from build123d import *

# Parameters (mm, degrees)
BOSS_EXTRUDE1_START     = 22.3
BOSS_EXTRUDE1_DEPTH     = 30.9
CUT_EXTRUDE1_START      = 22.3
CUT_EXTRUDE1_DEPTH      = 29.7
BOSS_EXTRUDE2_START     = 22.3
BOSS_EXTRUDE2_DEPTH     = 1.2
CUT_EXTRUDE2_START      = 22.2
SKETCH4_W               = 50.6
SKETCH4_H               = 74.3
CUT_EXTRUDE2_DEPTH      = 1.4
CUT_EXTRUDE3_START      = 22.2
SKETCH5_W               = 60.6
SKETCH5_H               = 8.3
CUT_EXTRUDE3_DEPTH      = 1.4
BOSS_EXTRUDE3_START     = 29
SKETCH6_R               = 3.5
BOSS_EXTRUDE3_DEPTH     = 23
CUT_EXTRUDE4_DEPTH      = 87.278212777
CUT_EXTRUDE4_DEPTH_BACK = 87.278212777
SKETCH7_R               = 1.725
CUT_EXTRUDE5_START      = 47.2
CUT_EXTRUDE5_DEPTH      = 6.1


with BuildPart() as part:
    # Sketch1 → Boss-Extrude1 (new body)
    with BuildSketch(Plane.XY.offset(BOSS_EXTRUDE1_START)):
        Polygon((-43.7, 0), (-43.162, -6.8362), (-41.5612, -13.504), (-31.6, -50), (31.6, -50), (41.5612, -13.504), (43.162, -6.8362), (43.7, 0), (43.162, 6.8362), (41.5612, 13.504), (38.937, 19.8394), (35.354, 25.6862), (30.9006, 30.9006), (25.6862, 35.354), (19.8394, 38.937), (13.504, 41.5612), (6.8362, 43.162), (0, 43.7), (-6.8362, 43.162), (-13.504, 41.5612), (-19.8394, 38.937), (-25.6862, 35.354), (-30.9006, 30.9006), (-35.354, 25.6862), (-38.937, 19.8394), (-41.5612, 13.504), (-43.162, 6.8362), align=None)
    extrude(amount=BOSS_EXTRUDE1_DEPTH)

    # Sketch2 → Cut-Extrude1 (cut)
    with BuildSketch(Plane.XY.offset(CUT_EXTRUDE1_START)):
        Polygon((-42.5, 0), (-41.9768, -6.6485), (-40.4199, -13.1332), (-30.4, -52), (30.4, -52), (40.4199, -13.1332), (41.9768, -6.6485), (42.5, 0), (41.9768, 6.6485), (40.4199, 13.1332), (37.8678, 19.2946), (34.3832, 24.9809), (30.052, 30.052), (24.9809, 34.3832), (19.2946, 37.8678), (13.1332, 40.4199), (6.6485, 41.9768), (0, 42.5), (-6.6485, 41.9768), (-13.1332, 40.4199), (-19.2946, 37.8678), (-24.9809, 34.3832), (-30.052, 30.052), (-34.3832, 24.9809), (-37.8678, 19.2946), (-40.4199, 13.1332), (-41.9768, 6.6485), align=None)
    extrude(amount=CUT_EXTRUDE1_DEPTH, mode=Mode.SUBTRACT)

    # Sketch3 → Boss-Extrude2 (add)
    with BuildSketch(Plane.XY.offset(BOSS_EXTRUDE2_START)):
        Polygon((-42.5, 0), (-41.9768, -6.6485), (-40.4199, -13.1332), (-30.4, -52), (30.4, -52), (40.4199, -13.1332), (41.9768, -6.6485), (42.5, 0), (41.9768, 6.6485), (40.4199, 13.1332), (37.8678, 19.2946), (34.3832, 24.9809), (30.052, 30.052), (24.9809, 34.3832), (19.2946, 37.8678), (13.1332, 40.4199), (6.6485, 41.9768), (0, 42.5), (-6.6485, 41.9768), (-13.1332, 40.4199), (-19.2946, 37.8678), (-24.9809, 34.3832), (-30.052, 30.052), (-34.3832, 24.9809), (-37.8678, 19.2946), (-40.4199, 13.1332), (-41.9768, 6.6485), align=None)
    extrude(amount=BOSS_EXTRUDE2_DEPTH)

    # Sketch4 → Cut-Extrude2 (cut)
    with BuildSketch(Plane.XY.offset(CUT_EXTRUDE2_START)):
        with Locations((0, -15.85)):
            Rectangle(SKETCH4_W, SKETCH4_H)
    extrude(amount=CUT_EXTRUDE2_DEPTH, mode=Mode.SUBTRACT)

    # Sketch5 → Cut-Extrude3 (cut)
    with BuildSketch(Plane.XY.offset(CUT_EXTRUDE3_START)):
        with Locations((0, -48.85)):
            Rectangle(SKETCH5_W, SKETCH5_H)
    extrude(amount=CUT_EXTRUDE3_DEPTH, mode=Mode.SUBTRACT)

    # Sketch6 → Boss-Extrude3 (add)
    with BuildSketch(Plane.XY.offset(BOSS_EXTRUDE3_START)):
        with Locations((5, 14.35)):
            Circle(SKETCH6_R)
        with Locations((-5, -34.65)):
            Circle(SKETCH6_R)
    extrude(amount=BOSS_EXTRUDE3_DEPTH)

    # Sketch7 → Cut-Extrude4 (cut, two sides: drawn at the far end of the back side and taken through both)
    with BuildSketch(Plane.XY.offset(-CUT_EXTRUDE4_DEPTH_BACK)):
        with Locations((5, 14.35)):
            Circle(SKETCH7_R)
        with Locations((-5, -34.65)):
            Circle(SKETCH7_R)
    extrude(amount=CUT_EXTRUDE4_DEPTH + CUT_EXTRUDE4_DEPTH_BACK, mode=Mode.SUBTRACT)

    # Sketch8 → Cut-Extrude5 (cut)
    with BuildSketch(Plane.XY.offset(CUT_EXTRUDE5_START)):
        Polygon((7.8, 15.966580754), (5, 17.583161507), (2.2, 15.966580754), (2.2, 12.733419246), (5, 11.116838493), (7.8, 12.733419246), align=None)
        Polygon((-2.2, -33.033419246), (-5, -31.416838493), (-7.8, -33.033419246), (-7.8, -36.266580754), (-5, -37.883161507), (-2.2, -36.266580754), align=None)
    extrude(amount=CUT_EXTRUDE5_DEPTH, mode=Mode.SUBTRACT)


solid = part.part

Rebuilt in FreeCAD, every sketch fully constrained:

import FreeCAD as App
import Part
import Sketcher
Q = App.Units.Quantity


def add_polygon(sketch, points):
    """Adds a closed chain of lines whose ends are joined by coincident constraints."""
    first, n = sketch.GeometryCount, len(points)
    for a, b in zip(points, points[1:] + points[:1]):
        sketch.addGeometry(Part.LineSegment(App.Vector(*a, 0), App.Vector(*b, 0)), False)
    for i in range(n):
        sketch.addConstraint(Sketcher.Constraint("Coincident", first + i, 2, first + (i + 1) % n, 1))

doc = App.newDocument("Part")
body = doc.addObject("PartDesign::Body", "Body")

# Sketch on XY plane
sketch1 = doc.addObject("Sketcher::SketchObject", "Sketch")
body.addObject(sketch1)
sketch1.AttachmentSupport = (doc.XY_Plane, [""])
sketch1.MapMode = "FlatFace"
sketch1.AttachmentOffset = App.Placement(App.Vector(0, 0, 22.3), App.Rotation())
add_polygon(sketch1, [(-44, 0), (-43, -7), (-42, -14), (-32, -50), (32, -50), (42, -14), (43, -7), (44, 0), (43, 7), (42, 14), (39, 20), (35, 26), (31, 31), (26, 35), (20, 39), (14, 42), (7, 43), (0, 44), (-7, 43), (-14, 42), (-20, 39), (-26, 35), (-31, 31), (-35, 26), (-39, 20), (-42, 14), (-43, 7)])  # lines 0-26
sketch1.addConstraint([
    Sketcher.Constraint("Horizontal", 3),
    Sketcher.Constraint("Symmetric", 0, 2, 7, 2, -1, 1),
    Sketcher.Constraint("Symmetric", 1, 2, 8, 2, -1, 1),
    Sketcher.Constraint("Symmetric", 4, 2, 24, 2, -1, 1),
    Sketcher.Constraint("Symmetric", 5, 2, 25, 2, -1, 1),
    Sketcher.Constraint("Symmetric", 6, 2, 26, 2, -1, 1),
    Sketcher.Constraint("Symmetric", 1, 2, 4, 2, -2),
    Sketcher.Constraint("Symmetric", 0, 2, 5, 2, -2),
    Sketcher.Constraint("Symmetric", 15, 2, 17, 2, -2),
    Sketcher.Constraint("Symmetric", 14, 2, 18, 2, -2),
    Sketcher.Constraint("Symmetric", 13, 2, 19, 2, -2),
    Sketcher.Constraint("Symmetric", 12, 2, 20, 2, -2),
    Sketcher.Constraint("Symmetric", 11, 2, 21, 2, -2),
    Sketcher.Constraint("Symmetric", 10, 2, 22, 2, -2),
    Sketcher.Constraint("Symmetric", 9, 2, 23, 2, -2),
    Sketcher.Constraint("PointOnObject", 6, 2, -1),
    Sketcher.Constraint("PointOnObject", 16, 2, -2),
    Sketcher.Constraint("Perpendicular", 5, 15),
    Sketcher.Constraint("Perpendicular", 6, 16),
    Sketcher.Constraint("Perpendicular", 9, 19),
    Sketcher.Constraint("Perpendicular", 10, 20),
    Sketcher.Constraint("Perpendicular", 11, 21),
    Sketcher.Constraint("Equal", 2, 4),
    Sketcher.Constraint("Equal", 11, 12),
    Sketcher.Constraint("Equal", 10, 13),
    Sketcher.Constraint("Equal", 9, 14),
    Sketcher.Constraint("Equal", 8, 15),
    Sketcher.Constraint("Equal", 7, 16),
    Sketcher.Constraint("DistanceX", 3, 1, 3, 2, Q("63.2 mm")),
    Sketcher.Constraint("DistanceY", 2, 2, -1, 1, Q("50 mm")),
    Sketcher.Constraint("DistanceX", -1, 1, 6, 2, Q("43.7 mm")),
    Sketcher.Constraint("DistanceY", 7, 2, 10, 2, Q("18.85 mm")),
    Sketcher.Constraint("DistanceY", 8, 2, 12, 2, Q("21.85 mm")),
    Sketcher.Constraint("DistanceX", 0, 2, -1, 1, Q("43.162 mm")),
    Sketcher.Constraint("DistanceY", 1, 2, -1, 1, Q("13.504 mm")),
    Sketcher.Constraint("DistanceX", -1, 1, 9, 2, Q("38.937 mm")),
    Sketcher.Constraint("DistanceX", 12, 2, 8, 2, Q("15.875 mm")),
    Sketcher.Constraint("DistanceY", 0, 2, -1, 1, Q("6.8362 mm")),
    Sketcher.Constraint("DistanceY", -1, 1, 9, 2, Q("19.8394 mm")),
    Sketcher.Constraint("DistanceX", -1, 1, 11, 2, Q("30.9006 mm")),
])
pad1 = doc.addObject("PartDesign::Pad", "Pad")
body.addObject(pad1)
pad1.Profile = sketch1
pad1.Length = 30.9

# Sketch on XY plane
sketch2 = doc.addObject("Sketcher::SketchObject", "Sketch001")
body.addObject(sketch2)
sketch2.AttachmentSupport = (doc.XY_Plane, [""])
sketch2.MapMode = "FlatFace"
sketch2.AttachmentOffset = App.Placement(App.Vector(0, 0, 22.3), App.Rotation())
add_polygon(sketch2, [(-42, 0), (-42, -7), (-40, -13), (-30, -52), (30, -52), (40, -13), (42, -7), (42, 0), (42, 7), (40, 13), (38, 19), (34, 25), (30, 30), (25, 34), (19, 38), (13, 40), (7, 42), (0, 42), (-7, 42), (-13, 40), (-19, 38), (-25, 34), (-30, 30), (-34, 25), (-38, 19), (-40, 13), (-42, 7)])  # lines 0-26
sketch2.addConstraint([
    Sketcher.Constraint("Horizontal", 3),
    Sketcher.Constraint("Symmetric", 0, 2, 7, 2, -1, 1),
    Sketcher.Constraint("Symmetric", 1, 2, 8, 2, -1, 1),
    Sketcher.Constraint("Symmetric", 4, 2, 24, 2, -1, 1),
    Sketcher.Constraint("Symmetric", 5, 2, 25, 2, -1, 1),
    Sketcher.Constraint("Symmetric", 6, 2, 26, 2, -1, 1),
    Sketcher.Constraint("Symmetric", 1, 2, 4, 2, -2),
    Sketcher.Constraint("Symmetric", 0, 2, 5, 2, -2),
    Sketcher.Constraint("Symmetric", 15, 2, 17, 2, -2),
    Sketcher.Constraint("Symmetric", 14, 2, 18, 2, -2),
    Sketcher.Constraint("Symmetric", 13, 2, 19, 2, -2),
    Sketcher.Constraint("Symmetric", 12, 2, 20, 2, -2),
    Sketcher.Constraint("Symmetric", 11, 2, 21, 2, -2),
    Sketcher.Constraint("Symmetric", 10, 2, 22, 2, -2),
    Sketcher.Constraint("Symmetric", 9, 2, 23, 2, -2),
    Sketcher.Constraint("PointOnObject", 6, 2, -1),
    Sketcher.Constraint("PointOnObject", 16, 2, -2),
    Sketcher.Constraint("Perpendicular", 5, 15),
    Sketcher.Constraint("Perpendicular", 6, 16),
    Sketcher.Constraint("Perpendicular", 9, 19),
    Sketcher.Constraint("Perpendicular", 10, 20),
    Sketcher.Constraint("Perpendicular", 11, 21),
    Sketcher.Constraint("Equal", 2, 4),
    Sketcher.Constraint("Equal", 11, 12),
    Sketcher.Constraint("Equal", 10, 13),
    Sketcher.Constraint("Equal", 9, 14),
    Sketcher.Constraint("Equal", 8, 15),
    Sketcher.Constraint("Equal", 7, 16),
    Sketcher.Constraint("DistanceX", 3, 1, 3, 2, Q("60.8 mm")),
    Sketcher.Constraint("DistanceY", 2, 2, -1, 1, Q("52 mm")),
    Sketcher.Constraint("DistanceX", -1, 1, 6, 2, Q("42.5 mm")),
    Sketcher.Constraint("DistanceY", 8, 2, 12, 2, Q("21.25 mm")),
    Sketcher.Constraint("DistanceX", -1, 1, 11, 2, Q("30.052 mm")),
    Sketcher.Constraint("DistanceY", 5, 2, 7, 2, Q("13.297 mm")),
    Sketcher.Constraint("DistanceX", 9, 2, 7, 2, Q("4.109 mm")),
    Sketcher.Constraint("DistanceX", 12, 2, 8, 2, Q("15.439 mm")),
    Sketcher.Constraint("DistanceX", 0, 2, -1, 1, Q("41.9768 mm")),
    Sketcher.Constraint("DistanceX", 1, 2, -1, 1, Q("40.4199 mm")),
    Sketcher.Constraint("DistanceY", 1, 2, -1, 1, Q("13.1332 mm")),
    Sketcher.Constraint("DistanceY", -1, 1, 9, 2, Q("19.2946 mm")),
])
pocket1 = doc.addObject("PartDesign::Pocket", "Pocket")
body.addObject(pocket1)
pocket1.Profile = sketch2
pocket1.Length = 29.7
pocket1.Reversed = True

# Sketch on XY plane
sketch3 = doc.addObject("Sketcher::SketchObject", "Sketch002")
body.addObject(sketch3)
sketch3.AttachmentSupport = (doc.XY_Plane, [""])
sketch3.MapMode = "FlatFace"
sketch3.AttachmentOffset = App.Placement(App.Vector(0, 0, 22.3), App.Rotation())
add_polygon(sketch3, [(-42, 0), (-42, -7), (-40, -13), (-30, -52), (30, -52), (40, -13), (42, -7), (42, 0), (42, 7), (40, 13), (38, 19), (34, 25), (30, 30), (25, 34), (19, 38), (13, 40), (7, 42), (0, 42), (-7, 42), (-13, 40), (-19, 38), (-25, 34), (-30, 30), (-34, 25), (-38, 19), (-40, 13), (-42, 7)])  # lines 0-26
sketch3.addConstraint([
    Sketcher.Constraint("Horizontal", 3),
    Sketcher.Constraint("Symmetric", 0, 2, 7, 2, -1, 1),
    Sketcher.Constraint("Symmetric", 1, 2, 8, 2, -1, 1),
    Sketcher.Constraint("Symmetric", 4, 2, 24, 2, -1, 1),
    Sketcher.Constraint("Symmetric", 5, 2, 25, 2, -1, 1),
    Sketcher.Constraint("Symmetric", 6, 2, 26, 2, -1, 1),
    Sketcher.Constraint("Symmetric", 1, 2, 4, 2, -2),
    Sketcher.Constraint("Symmetric", 0, 2, 5, 2, -2),
    Sketcher.Constraint("Symmetric", 15, 2, 17, 2, -2),
    Sketcher.Constraint("Symmetric", 14, 2, 18, 2, -2),
    Sketcher.Constraint("Symmetric", 13, 2, 19, 2, -2),
    Sketcher.Constraint("Symmetric", 12, 2, 20, 2, -2),
    Sketcher.Constraint("Symmetric", 11, 2, 21, 2, -2),
    Sketcher.Constraint("Symmetric", 10, 2, 22, 2, -2),
    Sketcher.Constraint("Symmetric", 9, 2, 23, 2, -2),
    Sketcher.Constraint("PointOnObject", 6, 2, -1),
    Sketcher.Constraint("PointOnObject", 16, 2, -2),
    Sketcher.Constraint("Perpendicular", 5, 15),
    Sketcher.Constraint("Perpendicular", 6, 16),
    Sketcher.Constraint("Perpendicular", 9, 19),
    Sketcher.Constraint("Perpendicular", 10, 20),
    Sketcher.Constraint("Perpendicular", 11, 21),
    Sketcher.Constraint("Equal", 2, 4),
    Sketcher.Constraint("Equal", 11, 12),
    Sketcher.Constraint("Equal", 10, 13),
    Sketcher.Constraint("Equal", 9, 14),
    Sketcher.Constraint("Equal", 8, 15),
    Sketcher.Constraint("Equal", 7, 16),
    Sketcher.Constraint("DistanceX", 3, 1, 3, 2, Q("60.8 mm")),
    Sketcher.Constraint("DistanceY", 2, 2, -1, 1, Q("52 mm")),
    Sketcher.Constraint("DistanceX", -1, 1, 6, 2, Q("42.5 mm")),
    Sketcher.Constraint("DistanceY", 8, 2, 12, 2, Q("21.25 mm")),
    Sketcher.Constraint("DistanceX", -1, 1, 11, 2, Q("30.052 mm")),
    Sketcher.Constraint("DistanceY", 5, 2, 7, 2, Q("13.297 mm")),
    Sketcher.Constraint("DistanceX", 9, 2, 7, 2, Q("4.109 mm")),
    Sketcher.Constraint("DistanceX", 12, 2, 8, 2, Q("15.439 mm")),
    Sketcher.Constraint("DistanceX", 0, 2, -1, 1, Q("41.9768 mm")),
    Sketcher.Constraint("DistanceX", 1, 2, -1, 1, Q("40.4199 mm")),
    Sketcher.Constraint("DistanceY", 1, 2, -1, 1, Q("13.1332 mm")),
    Sketcher.Constraint("DistanceY", -1, 1, 9, 2, Q("19.2946 mm")),
])
pad2 = doc.addObject("PartDesign::Pad", "Pad001")
body.addObject(pad2)
pad2.Profile = sketch3
pad2.Length = 1.2

# Sketch on XY plane
sketch4 = doc.addObject("Sketcher::SketchObject", "Sketch003")
body.addObject(sketch4)
sketch4.AttachmentSupport = (doc.XY_Plane, [""])
sketch4.MapMode = "FlatFace"
sketch4.AttachmentOffset = App.Placement(App.Vector(0, 0, 22.2), App.Rotation())
add_polygon(sketch4, [(-25, 21), (-25, -53), (25, -53), (25, 21)])  # lines 0-3
sketch4.addConstraint([
    Sketcher.Constraint("Vertical", 0),
    Sketcher.Constraint("Horizontal", 1),
    Sketcher.Constraint("Vertical", 2),
    Sketcher.Constraint("Horizontal", 3),
    Sketcher.Constraint("DistanceX", 1, 1, 1, 2, Q("50.6 mm")),
    Sketcher.Constraint("DistanceY", 0, 2, 0, 1, Q("74.3 mm")),
    Sketcher.Constraint("DistanceY", 0, 2, -1, 1, Q("53 mm")),
    Sketcher.Constraint("DistanceX", 0, 2, -1, 1, Q("25.3 mm")),
])
pocket2 = doc.addObject("PartDesign::Pocket", "Pocket001")
body.addObject(pocket2)
pocket2.Profile = sketch4
pocket2.Length = 1.4
pocket2.Reversed = True

# Sketch on XY plane
sketch5 = doc.addObject("Sketcher::SketchObject", "Sketch004")
body.addObject(sketch5)
sketch5.AttachmentSupport = (doc.XY_Plane, [""])
sketch5.MapMode = "FlatFace"
sketch5.AttachmentOffset = App.Placement(App.Vector(0, 0, 22.2), App.Rotation())
add_polygon(sketch5, [(-30, -45), (-30, -53), (30, -53), (30, -45)])  # lines 0-3
sketch5.addConstraint([
    Sketcher.Constraint("Vertical", 0),
    Sketcher.Constraint("Horizontal", 1),
    Sketcher.Constraint("Vertical", 2),
    Sketcher.Constraint("Horizontal", 3),
    Sketcher.Constraint("DistanceX", 1, 1, 1, 2, Q("60.6 mm")),
    Sketcher.Constraint("DistanceY", 0, 2, 0, 1, Q("8.3 mm")),
    Sketcher.Constraint("DistanceY", 0, 2, -1, 1, Q("53 mm")),
    Sketcher.Constraint("DistanceX", 0, 2, -1, 1, Q("30.3 mm")),
])
pocket3 = doc.addObject("PartDesign::Pocket", "Pocket002")
body.addObject(pocket3)
pocket3.Profile = sketch5
pocket3.Length = 1.4
pocket3.Reversed = True

# Sketch on XY plane
sketch6 = doc.addObject("Sketcher::SketchObject", "Sketch005")
body.addObject(sketch6)
sketch6.AttachmentSupport = (doc.XY_Plane, [""])
sketch6.MapMode = "FlatFace"
sketch6.AttachmentOffset = App.Placement(App.Vector(0, 0, 29), App.Rotation())
sketch6.addGeometry([
    Part.Circle(App.Vector(5, 14.3, 0), App.Vector(0, 0, 1), 3.5),
    Part.Circle(App.Vector(-5, -34.6, 0), App.Vector(0, 0, 1), 3.5),
], False)
sketch6.addConstraint([
    Sketcher.Constraint("Equal", 0, 1),
    Sketcher.Constraint("Diameter", 0, Q("7 mm")),
    Sketcher.Constraint("DistanceX", -1, 1, 0, 3, Q("5 mm")),
    Sketcher.Constraint("DistanceX", 1, 3, -1, 1, Q("5 mm")),
    Sketcher.Constraint("DistanceY", 1, 3, 0, 3, Q("49 mm")),
    Sketcher.Constraint("DistanceY", -1, 1, 0, 3, Q("14.35 mm")),
])
pad3 = doc.addObject("PartDesign::Pad", "Pad002")
body.addObject(pad3)
pad3.Profile = sketch6
pad3.Length = 23

# Sketch on XY plane
sketch7 = doc.addObject("Sketcher::SketchObject", "Sketch006")
body.addObject(sketch7)
sketch7.AttachmentSupport = (doc.XY_Plane, [""])
sketch7.MapMode = "FlatFace"
sketch7.addGeometry([
    Part.Circle(App.Vector(5, 14.3, 0), App.Vector(0, 0, 1), 1.7),
    Part.Circle(App.Vector(-5, -34.6, 0), App.Vector(0, 0, 1), 1.7),
], False)
sketch7.addConstraint([
    Sketcher.Constraint("Equal", 0, 1),
    Sketcher.Constraint("Diameter", 0, Q("3.45 mm")),
    Sketcher.Constraint("DistanceX", -1, 1, 0, 3, Q("5 mm")),
    Sketcher.Constraint("DistanceX", 1, 3, -1, 1, Q("5 mm")),
    Sketcher.Constraint("DistanceY", 1, 3, 0, 3, Q("49 mm")),
    Sketcher.Constraint("DistanceY", -1, 1, 0, 3, Q("14.35 mm")),
])
pocket4 = doc.addObject("PartDesign::Pocket", "Pocket003")
body.addObject(pocket4)
pocket4.Profile = sketch7
pocket4.Type = "ThroughAll"
pocket4.Midplane = True

# Sketch on XY plane
sketch8 = doc.addObject("Sketcher::SketchObject", "Sketch007")
body.addObject(sketch8)
sketch8.AttachmentSupport = (doc.XY_Plane, [""])
sketch8.MapMode = "FlatFace"
sketch8.AttachmentOffset = App.Placement(App.Vector(0, 0, 47.2), App.Rotation())
add_polygon(sketch8, [(7.8, 16), (5, 17.6), (2.2, 16), (2.2, 12.7), (5, 11.1), (7.8, 12.7)])  # lines 0-5
add_polygon(sketch8, [(-2.2, -33), (-5, -31.4), (-7.8, -33), (-7.8, -36.3), (-5, -37.9), (-2.2, -36.3)])  # lines 6-11
sketch8.addConstraint([
    Sketcher.Constraint("Vertical", 2),
    Sketcher.Constraint("Vertical", 5),
    Sketcher.Constraint("Vertical", 8),
    Sketcher.Constraint("Vertical", 11),
    Sketcher.Constraint("Parallel", 0, 3),
    Sketcher.Constraint("Parallel", 1, 4),
    Sketcher.Constraint("Parallel", 3, 6),
    Sketcher.Constraint("Parallel", 4, 7),
    Sketcher.Constraint("Parallel", 6, 9),
    Sketcher.Constraint("Parallel", 7, 10),
    Sketcher.Constraint("Horizontal", 2, 2, 4, 2),
    Sketcher.Constraint("Horizontal", 1, 2, 5, 2),
    Sketcher.Constraint("Horizontal", 8, 2, 10, 2),
    Sketcher.Constraint("Horizontal", 7, 2, 11, 2),
    Sketcher.Constraint("Vertical", 0, 2, 3, 2),
    Sketcher.Constraint("Equal", 5, 8),
    Sketcher.Constraint("Equal", 4, 6),
    Sketcher.Constraint("Angle", 0, Q("150 deg")),
    Sketcher.Constraint("DistanceX", -1, 1, 0, 2, Q("5 mm")),
    Sketcher.Constraint("DistanceX", 6, 2, -1, 1, Q("5 mm")),
    Sketcher.Constraint("DistanceY", 7, 2, 1, 2, Q("49 mm")),
    Sketcher.Constraint("DistanceX", -1, 1, 1, 2, Q("2.2 mm")),
    Sketcher.Constraint("DistanceY", 2, 2, 2, 1, Q("3.233162 mm")),
    Sketcher.Constraint("DistanceY", -1, 1, 0, 2, Q("17.583162 mm")),
])
pocket5 = doc.addObject("PartDesign::Pocket", "Pocket004")
body.addObject(pocket5)
pocket5.Profile = sketch8
pocket5.Length = 6.1
pocket5.Reversed = True

doc.recompute()
